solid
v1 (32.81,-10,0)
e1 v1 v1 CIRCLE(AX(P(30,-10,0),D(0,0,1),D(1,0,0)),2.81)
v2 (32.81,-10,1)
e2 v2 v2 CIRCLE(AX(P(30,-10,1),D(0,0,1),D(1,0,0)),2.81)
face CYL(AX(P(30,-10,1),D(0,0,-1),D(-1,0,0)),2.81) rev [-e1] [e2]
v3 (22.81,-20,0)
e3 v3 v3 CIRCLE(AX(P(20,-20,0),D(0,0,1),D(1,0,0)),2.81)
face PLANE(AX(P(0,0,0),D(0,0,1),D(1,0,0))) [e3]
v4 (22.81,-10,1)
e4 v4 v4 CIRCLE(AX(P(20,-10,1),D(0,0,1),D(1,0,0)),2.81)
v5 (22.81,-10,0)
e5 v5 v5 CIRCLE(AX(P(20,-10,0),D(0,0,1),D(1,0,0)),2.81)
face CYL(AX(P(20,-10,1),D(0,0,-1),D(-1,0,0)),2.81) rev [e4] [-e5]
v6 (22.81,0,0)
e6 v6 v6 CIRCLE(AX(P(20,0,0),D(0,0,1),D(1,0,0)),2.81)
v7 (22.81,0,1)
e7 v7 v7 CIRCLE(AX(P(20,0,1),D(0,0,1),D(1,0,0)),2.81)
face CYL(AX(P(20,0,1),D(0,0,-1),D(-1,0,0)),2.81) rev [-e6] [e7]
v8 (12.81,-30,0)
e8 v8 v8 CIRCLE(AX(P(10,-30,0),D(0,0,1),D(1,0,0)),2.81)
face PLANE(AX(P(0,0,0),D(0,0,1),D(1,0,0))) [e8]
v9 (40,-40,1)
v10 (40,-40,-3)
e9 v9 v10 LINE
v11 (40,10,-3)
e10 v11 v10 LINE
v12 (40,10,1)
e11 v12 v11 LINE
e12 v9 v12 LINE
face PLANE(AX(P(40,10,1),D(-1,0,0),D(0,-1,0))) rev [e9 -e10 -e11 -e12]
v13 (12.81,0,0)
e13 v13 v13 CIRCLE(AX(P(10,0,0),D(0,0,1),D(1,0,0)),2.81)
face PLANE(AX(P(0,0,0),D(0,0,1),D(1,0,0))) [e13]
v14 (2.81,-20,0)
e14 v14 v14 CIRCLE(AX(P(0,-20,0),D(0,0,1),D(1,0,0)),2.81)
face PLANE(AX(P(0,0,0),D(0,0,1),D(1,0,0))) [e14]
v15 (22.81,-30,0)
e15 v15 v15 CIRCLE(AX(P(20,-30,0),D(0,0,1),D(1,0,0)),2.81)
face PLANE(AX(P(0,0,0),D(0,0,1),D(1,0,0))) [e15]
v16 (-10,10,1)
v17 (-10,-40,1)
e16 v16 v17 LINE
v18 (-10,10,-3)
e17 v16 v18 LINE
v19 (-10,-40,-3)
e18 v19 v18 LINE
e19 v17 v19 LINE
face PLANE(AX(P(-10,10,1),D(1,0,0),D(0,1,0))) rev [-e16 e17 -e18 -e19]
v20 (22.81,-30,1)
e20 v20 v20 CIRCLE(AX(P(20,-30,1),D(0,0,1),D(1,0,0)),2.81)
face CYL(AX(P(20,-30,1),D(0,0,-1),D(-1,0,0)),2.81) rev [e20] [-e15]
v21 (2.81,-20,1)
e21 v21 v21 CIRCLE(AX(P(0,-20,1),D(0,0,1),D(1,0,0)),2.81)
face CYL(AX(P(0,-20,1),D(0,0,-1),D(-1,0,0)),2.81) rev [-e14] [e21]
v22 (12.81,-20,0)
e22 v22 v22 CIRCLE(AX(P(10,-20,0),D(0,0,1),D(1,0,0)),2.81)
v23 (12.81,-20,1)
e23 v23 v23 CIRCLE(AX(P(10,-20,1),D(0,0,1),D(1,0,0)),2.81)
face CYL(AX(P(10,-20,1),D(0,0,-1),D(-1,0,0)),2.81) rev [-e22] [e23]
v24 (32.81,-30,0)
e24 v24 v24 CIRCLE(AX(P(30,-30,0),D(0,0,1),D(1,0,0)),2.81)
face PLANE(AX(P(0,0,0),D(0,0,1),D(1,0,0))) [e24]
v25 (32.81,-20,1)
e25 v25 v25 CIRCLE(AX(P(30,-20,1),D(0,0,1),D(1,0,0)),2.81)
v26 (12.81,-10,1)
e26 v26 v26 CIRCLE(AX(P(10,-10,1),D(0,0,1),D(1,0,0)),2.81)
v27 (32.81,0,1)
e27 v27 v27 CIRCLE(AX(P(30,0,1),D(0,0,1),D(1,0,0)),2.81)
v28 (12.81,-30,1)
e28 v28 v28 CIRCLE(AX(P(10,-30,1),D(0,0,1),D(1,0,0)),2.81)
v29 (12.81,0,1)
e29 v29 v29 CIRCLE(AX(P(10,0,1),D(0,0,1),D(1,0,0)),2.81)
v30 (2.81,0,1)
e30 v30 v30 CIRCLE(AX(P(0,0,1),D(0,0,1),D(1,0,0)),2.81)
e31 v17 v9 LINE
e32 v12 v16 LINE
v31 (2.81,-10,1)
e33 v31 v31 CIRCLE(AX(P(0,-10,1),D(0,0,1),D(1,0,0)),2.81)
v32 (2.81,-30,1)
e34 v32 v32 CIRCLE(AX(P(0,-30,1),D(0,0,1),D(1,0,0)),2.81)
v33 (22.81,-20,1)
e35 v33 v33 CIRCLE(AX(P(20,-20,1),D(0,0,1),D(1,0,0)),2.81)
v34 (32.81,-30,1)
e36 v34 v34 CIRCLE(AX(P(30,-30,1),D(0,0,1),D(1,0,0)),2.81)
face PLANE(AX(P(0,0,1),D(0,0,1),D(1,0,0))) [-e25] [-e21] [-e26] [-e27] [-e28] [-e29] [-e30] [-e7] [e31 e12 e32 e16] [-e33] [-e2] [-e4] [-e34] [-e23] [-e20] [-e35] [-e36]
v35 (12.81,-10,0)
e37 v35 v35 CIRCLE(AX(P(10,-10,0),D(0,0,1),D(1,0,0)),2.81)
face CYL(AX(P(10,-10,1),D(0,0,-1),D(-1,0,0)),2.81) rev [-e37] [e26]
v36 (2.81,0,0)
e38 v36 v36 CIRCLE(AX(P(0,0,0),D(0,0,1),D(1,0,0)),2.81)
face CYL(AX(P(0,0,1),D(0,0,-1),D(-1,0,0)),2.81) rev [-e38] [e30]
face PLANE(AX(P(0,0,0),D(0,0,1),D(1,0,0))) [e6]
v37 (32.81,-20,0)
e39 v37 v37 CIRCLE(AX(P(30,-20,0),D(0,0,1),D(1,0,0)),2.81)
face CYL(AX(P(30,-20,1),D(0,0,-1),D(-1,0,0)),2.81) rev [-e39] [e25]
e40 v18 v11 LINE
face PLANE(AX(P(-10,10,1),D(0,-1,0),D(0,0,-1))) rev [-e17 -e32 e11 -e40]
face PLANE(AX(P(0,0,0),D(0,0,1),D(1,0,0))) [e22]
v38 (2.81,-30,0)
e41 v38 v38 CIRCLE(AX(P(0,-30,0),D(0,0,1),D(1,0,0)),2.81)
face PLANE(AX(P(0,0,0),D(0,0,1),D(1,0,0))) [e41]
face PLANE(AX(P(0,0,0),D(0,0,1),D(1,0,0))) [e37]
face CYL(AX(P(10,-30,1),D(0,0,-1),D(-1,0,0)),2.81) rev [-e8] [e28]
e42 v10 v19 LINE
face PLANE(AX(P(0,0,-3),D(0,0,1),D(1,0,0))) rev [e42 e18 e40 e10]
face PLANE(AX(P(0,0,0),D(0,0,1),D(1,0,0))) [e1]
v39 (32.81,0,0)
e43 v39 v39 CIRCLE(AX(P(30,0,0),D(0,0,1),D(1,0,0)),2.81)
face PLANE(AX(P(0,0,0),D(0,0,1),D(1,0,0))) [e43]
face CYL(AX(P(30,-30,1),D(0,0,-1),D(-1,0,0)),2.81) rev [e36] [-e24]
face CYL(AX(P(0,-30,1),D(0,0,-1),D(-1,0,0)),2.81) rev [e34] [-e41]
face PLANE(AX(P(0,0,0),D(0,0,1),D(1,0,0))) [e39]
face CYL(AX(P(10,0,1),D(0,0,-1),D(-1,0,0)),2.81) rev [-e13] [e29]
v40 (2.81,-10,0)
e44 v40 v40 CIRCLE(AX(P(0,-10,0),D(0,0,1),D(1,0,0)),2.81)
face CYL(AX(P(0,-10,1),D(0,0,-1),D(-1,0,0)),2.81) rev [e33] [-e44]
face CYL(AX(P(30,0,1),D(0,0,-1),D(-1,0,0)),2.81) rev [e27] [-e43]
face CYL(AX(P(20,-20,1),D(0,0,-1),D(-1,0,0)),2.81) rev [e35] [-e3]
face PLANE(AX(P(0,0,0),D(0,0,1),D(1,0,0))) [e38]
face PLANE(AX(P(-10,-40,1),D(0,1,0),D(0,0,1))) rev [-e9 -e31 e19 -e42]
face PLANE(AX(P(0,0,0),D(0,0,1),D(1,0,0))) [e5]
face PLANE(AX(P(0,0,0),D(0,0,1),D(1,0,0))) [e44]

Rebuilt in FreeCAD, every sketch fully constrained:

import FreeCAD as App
import Part
import Sketcher
from FreeCAD import Vector

doc = App.newDocument("Part")
body = doc.addObject("PartDesign::Body", "Body")

# Sketch on XY plane
sketch1 = body.newObject("Sketcher::SketchObject", "Sketch")
sketch1.AttachmentSupport = (doc.getObject("XY_Plane"), [""])
sketch1.MapMode = "FlatFace"
sketch1.addGeometry([
    Part.LineSegment(Vector(-10, 10, 0), Vector(-10, -40, 0)),  # 0
    Part.LineSegment(Vector(-10, -40, 0), Vector(40, -40, 0)),  # 1
    Part.LineSegment(Vector(40, -40, 0), Vector(40, 10, 0)),  # 2
    Part.LineSegment(Vector(40, 10, 0), Vector(-10, 10, 0)),  # 3
    Part.Circle(Vector(0, -30, 0), Vector(0, 0, 1), 2.8),  # 4
    Part.Circle(Vector(10, -30, 0), Vector(0, 0, 1), 2.8),  # 5
    Part.Circle(Vector(0, -20, 0), Vector(0, 0, 1), 2.8),  # 6
    Part.Circle(Vector(10, -20, 0), Vector(0, 0, 1), 2.8),  # 7
    Part.Circle(Vector(20, -30, 0), Vector(0, 0, 1), 2.8),  # 8
    Part.Circle(Vector(30, -30, 0), Vector(0, 0, 1), 2.8),  # 9
    Part.Circle(Vector(20, -20, 0), Vector(0, 0, 1), 2.8),  # 10
    Part.Circle(Vector(30, -20, 0), Vector(0, 0, 1), 2.8),  # 11
    Part.Circle(Vector(0, -10, 0), Vector(0, 0, 1), 2.8),  # 12
    Part.Circle(Vector(10, -10, 0), Vector(0, 0, 1), 2.8),  # 13
    Part.Circle(Vector(0, 0, 0), Vector(0, 0, 1), 2.8),  # 14
    Part.Circle(Vector(10, 0, 0), Vector(0, 0, 1), 2.8),  # 15
    Part.Circle(Vector(20, -10, 0), Vector(0, 0, 1), 2.8),  # 16
    Part.Circle(Vector(30, -10, 0), Vector(0, 0, 1), 2.8),  # 17
    Part.Circle(Vector(20, 0, 0), Vector(0, 0, 1), 2.8),  # 18
    Part.Circle(Vector(30, 0, 0), Vector(0, 0, 1), 2.8),  # 19
], False)
sketch1.addConstraint([
    Sketcher.Constraint("Coincident", 0, 2, 1, 1),
    Sketcher.Constraint("Coincident", 1, 2, 2, 1),
    Sketcher.Constraint("Coincident", 2, 2, 3, 1),
    Sketcher.Constraint("Coincident", 3, 2, 0, 1),
    Sketcher.Constraint("Vertical", 0),
    Sketcher.Constraint("Horizontal", 1),
    Sketcher.Constraint("Vertical", 2),
    Sketcher.Constraint("Horizontal", 3),
    Sketcher.Constraint("Coincident", 14, 3, -1, 1),
    Sketcher.Constraint("Equal", 4, 5),
    Sketcher.Constraint("Equal", 5, 6),
    Sketcher.Constraint("Equal", 6, 7),
    Sketcher.Constraint("Equal", 7, 8),
    Sketcher.Constraint("Equal", 8, 9),
    Sketcher.Constraint("Equal", 9, 10),
    Sketcher.Constraint("Equal", 10, 11),
    Sketcher.Constraint("Equal", 11, 12),
    Sketcher.Constraint("Equal", 12, 13),
    Sketcher.Constraint("Equal", 13, 14),
    Sketcher.Constraint("Equal", 14, 15),
    Sketcher.Constraint("Equal", 15, 16),
    Sketcher.Constraint("Equal", 16, 17),
    Sketcher.Constraint("Equal", 17, 18),
    Sketcher.Constraint("Equal", 18, 19),
    Sketcher.Constraint("PointOnObject", 4, 3, -2),
    Sketcher.Constraint("PointOnObject", 6, 3, -2),
    Sketcher.Constraint("PointOnObject", 12, 3, -2),
    Sketcher.Constraint("PointOnObject", 15, 3, -1),
    Sketcher.Constraint("PointOnObject", 18, 3, -1),
    Sketcher.Constraint("PointOnObject", 19, 3, -1),
    Sketcher.Constraint("Horizontal", 4, 3, 5, 3),
    Sketcher.Constraint("Horizontal", 6, 3, 7, 3),
    Sketcher.Constraint("Horizontal", 5, 3, 8, 3),
    Sketcher.Constraint("Horizontal", 8, 3, 9, 3),
    Sketcher.Constraint("Horizontal", 7, 3, 10, 3),
    Sketcher.Constraint("Horizontal", 10, 3, 11, 3),
    Sketcher.Constraint("Horizontal", 12, 3, 13, 3),
    Sketcher.Constraint("Horizontal", 13, 3, 16, 3),
    Sketcher.Constraint("Horizontal", 16, 3, 17, 3),
    Sketcher.Constraint("Vertical", 5, 3, 7, 3),
    Sketcher.Constraint("Vertical", 8, 3, 10, 3),
    Sketcher.Constraint("Vertical", 9, 3, 11, 3),
    Sketcher.Constraint("Vertical", 7, 3, 13, 3),
    Sketcher.Constraint("Vertical", 13, 3, 15, 3),
    Sketcher.Constraint("Vertical", 10, 3, 16, 3),
    Sketcher.Constraint("Vertical", 11, 3, 17, 3),
    Sketcher.Constraint("Vertical", 16, 3, 18, 3),
    Sketcher.Constraint("Vertical", 17, 3, 19, 3),
    Sketcher.Constraint("Equal", 3, 0),
    Sketcher.Constraint("Diameter", 4, 5.62),
    Sketcher.Constraint("DistanceX", 1, 1, 1, 2, 50.0),
    Sketcher.Constraint("DistanceY", 4, 3, -1, 1, 30.0),
    Sketcher.Constraint("DistanceX", -1, 1, 5, 3, 10.0),
    Sketcher.Constraint("DistanceY", 6, 3, -1, 1, 20.0),
    Sketcher.Constraint("DistanceX", -1, 1, 8, 3, 20.0),
    Sketcher.Constraint("DistanceX", -1, 1, 9, 3, 30.0),
    Sketcher.Constraint("DistanceY", 12, 3, -1, 1, 10.0),
    Sketcher.Constraint("DistanceX", 0, 2, -1, 1, 10.0),
    Sketcher.Constraint("DistanceY", 0, 2, -1, 1, 40.0),
])
pad1 = body.newObject("PartDesign::Pad", "Pad")
pad1.Profile = sketch1
pad1.Length = 1

# Sketch on XY plane
sketch2 = body.newObject("Sketcher::SketchObject", "Sketch001")
sketch2.AttachmentSupport = (doc.getObject("XY_Plane"), [""])
sketch2.MapMode = "FlatFace"
sketch2.addGeometry([
    Part.LineSegment(Vector(40, 10, 0), Vector(40, -40, 0)),
    Part.LineSegment(Vector(40, -40, 0), Vector(-10, -40, 0)),
    Part.LineSegment(Vector(-10, -40, 0), Vector(-10, 10, 0)),
    Part.LineSegment(Vector(-10, 10, 0), Vector(40, 10, 0)),
], False)
sketch2.addConstraint([
    Sketcher.Constraint("Coincident", 0, 2, 1, 1),
    Sketcher.Constraint("Coincident", 1, 2, 2, 1),
    Sketcher.Constraint("Coincident", 2, 2, 3, 1),
    Sketcher.Constraint("Coincident", 3, 2, 0, 1),
    Sketcher.Constraint("Vertical", 0),
    Sketcher.Constraint("Horizontal", 1),
    Sketcher.Constraint("Vertical", 2),
    Sketcher.Constraint("Horizontal", 3),
    Sketcher.Constraint("Equal", 3, 0),
    Sketcher.Constraint("DistanceX", 1, 2, 1, 1, 50.0),
    Sketcher.Constraint("DistanceX", -1, 1, 0, 2, 40.0),
    Sketcher.Constraint("DistanceY", 0, 2, -1, 1, 40.0),
])
pad2 = body.newObject("PartDesign::Pad", "Pad001")
pad2.Profile = sketch2
pad2.Length = 3
pad2.Reversed = True

doc.recompute()
